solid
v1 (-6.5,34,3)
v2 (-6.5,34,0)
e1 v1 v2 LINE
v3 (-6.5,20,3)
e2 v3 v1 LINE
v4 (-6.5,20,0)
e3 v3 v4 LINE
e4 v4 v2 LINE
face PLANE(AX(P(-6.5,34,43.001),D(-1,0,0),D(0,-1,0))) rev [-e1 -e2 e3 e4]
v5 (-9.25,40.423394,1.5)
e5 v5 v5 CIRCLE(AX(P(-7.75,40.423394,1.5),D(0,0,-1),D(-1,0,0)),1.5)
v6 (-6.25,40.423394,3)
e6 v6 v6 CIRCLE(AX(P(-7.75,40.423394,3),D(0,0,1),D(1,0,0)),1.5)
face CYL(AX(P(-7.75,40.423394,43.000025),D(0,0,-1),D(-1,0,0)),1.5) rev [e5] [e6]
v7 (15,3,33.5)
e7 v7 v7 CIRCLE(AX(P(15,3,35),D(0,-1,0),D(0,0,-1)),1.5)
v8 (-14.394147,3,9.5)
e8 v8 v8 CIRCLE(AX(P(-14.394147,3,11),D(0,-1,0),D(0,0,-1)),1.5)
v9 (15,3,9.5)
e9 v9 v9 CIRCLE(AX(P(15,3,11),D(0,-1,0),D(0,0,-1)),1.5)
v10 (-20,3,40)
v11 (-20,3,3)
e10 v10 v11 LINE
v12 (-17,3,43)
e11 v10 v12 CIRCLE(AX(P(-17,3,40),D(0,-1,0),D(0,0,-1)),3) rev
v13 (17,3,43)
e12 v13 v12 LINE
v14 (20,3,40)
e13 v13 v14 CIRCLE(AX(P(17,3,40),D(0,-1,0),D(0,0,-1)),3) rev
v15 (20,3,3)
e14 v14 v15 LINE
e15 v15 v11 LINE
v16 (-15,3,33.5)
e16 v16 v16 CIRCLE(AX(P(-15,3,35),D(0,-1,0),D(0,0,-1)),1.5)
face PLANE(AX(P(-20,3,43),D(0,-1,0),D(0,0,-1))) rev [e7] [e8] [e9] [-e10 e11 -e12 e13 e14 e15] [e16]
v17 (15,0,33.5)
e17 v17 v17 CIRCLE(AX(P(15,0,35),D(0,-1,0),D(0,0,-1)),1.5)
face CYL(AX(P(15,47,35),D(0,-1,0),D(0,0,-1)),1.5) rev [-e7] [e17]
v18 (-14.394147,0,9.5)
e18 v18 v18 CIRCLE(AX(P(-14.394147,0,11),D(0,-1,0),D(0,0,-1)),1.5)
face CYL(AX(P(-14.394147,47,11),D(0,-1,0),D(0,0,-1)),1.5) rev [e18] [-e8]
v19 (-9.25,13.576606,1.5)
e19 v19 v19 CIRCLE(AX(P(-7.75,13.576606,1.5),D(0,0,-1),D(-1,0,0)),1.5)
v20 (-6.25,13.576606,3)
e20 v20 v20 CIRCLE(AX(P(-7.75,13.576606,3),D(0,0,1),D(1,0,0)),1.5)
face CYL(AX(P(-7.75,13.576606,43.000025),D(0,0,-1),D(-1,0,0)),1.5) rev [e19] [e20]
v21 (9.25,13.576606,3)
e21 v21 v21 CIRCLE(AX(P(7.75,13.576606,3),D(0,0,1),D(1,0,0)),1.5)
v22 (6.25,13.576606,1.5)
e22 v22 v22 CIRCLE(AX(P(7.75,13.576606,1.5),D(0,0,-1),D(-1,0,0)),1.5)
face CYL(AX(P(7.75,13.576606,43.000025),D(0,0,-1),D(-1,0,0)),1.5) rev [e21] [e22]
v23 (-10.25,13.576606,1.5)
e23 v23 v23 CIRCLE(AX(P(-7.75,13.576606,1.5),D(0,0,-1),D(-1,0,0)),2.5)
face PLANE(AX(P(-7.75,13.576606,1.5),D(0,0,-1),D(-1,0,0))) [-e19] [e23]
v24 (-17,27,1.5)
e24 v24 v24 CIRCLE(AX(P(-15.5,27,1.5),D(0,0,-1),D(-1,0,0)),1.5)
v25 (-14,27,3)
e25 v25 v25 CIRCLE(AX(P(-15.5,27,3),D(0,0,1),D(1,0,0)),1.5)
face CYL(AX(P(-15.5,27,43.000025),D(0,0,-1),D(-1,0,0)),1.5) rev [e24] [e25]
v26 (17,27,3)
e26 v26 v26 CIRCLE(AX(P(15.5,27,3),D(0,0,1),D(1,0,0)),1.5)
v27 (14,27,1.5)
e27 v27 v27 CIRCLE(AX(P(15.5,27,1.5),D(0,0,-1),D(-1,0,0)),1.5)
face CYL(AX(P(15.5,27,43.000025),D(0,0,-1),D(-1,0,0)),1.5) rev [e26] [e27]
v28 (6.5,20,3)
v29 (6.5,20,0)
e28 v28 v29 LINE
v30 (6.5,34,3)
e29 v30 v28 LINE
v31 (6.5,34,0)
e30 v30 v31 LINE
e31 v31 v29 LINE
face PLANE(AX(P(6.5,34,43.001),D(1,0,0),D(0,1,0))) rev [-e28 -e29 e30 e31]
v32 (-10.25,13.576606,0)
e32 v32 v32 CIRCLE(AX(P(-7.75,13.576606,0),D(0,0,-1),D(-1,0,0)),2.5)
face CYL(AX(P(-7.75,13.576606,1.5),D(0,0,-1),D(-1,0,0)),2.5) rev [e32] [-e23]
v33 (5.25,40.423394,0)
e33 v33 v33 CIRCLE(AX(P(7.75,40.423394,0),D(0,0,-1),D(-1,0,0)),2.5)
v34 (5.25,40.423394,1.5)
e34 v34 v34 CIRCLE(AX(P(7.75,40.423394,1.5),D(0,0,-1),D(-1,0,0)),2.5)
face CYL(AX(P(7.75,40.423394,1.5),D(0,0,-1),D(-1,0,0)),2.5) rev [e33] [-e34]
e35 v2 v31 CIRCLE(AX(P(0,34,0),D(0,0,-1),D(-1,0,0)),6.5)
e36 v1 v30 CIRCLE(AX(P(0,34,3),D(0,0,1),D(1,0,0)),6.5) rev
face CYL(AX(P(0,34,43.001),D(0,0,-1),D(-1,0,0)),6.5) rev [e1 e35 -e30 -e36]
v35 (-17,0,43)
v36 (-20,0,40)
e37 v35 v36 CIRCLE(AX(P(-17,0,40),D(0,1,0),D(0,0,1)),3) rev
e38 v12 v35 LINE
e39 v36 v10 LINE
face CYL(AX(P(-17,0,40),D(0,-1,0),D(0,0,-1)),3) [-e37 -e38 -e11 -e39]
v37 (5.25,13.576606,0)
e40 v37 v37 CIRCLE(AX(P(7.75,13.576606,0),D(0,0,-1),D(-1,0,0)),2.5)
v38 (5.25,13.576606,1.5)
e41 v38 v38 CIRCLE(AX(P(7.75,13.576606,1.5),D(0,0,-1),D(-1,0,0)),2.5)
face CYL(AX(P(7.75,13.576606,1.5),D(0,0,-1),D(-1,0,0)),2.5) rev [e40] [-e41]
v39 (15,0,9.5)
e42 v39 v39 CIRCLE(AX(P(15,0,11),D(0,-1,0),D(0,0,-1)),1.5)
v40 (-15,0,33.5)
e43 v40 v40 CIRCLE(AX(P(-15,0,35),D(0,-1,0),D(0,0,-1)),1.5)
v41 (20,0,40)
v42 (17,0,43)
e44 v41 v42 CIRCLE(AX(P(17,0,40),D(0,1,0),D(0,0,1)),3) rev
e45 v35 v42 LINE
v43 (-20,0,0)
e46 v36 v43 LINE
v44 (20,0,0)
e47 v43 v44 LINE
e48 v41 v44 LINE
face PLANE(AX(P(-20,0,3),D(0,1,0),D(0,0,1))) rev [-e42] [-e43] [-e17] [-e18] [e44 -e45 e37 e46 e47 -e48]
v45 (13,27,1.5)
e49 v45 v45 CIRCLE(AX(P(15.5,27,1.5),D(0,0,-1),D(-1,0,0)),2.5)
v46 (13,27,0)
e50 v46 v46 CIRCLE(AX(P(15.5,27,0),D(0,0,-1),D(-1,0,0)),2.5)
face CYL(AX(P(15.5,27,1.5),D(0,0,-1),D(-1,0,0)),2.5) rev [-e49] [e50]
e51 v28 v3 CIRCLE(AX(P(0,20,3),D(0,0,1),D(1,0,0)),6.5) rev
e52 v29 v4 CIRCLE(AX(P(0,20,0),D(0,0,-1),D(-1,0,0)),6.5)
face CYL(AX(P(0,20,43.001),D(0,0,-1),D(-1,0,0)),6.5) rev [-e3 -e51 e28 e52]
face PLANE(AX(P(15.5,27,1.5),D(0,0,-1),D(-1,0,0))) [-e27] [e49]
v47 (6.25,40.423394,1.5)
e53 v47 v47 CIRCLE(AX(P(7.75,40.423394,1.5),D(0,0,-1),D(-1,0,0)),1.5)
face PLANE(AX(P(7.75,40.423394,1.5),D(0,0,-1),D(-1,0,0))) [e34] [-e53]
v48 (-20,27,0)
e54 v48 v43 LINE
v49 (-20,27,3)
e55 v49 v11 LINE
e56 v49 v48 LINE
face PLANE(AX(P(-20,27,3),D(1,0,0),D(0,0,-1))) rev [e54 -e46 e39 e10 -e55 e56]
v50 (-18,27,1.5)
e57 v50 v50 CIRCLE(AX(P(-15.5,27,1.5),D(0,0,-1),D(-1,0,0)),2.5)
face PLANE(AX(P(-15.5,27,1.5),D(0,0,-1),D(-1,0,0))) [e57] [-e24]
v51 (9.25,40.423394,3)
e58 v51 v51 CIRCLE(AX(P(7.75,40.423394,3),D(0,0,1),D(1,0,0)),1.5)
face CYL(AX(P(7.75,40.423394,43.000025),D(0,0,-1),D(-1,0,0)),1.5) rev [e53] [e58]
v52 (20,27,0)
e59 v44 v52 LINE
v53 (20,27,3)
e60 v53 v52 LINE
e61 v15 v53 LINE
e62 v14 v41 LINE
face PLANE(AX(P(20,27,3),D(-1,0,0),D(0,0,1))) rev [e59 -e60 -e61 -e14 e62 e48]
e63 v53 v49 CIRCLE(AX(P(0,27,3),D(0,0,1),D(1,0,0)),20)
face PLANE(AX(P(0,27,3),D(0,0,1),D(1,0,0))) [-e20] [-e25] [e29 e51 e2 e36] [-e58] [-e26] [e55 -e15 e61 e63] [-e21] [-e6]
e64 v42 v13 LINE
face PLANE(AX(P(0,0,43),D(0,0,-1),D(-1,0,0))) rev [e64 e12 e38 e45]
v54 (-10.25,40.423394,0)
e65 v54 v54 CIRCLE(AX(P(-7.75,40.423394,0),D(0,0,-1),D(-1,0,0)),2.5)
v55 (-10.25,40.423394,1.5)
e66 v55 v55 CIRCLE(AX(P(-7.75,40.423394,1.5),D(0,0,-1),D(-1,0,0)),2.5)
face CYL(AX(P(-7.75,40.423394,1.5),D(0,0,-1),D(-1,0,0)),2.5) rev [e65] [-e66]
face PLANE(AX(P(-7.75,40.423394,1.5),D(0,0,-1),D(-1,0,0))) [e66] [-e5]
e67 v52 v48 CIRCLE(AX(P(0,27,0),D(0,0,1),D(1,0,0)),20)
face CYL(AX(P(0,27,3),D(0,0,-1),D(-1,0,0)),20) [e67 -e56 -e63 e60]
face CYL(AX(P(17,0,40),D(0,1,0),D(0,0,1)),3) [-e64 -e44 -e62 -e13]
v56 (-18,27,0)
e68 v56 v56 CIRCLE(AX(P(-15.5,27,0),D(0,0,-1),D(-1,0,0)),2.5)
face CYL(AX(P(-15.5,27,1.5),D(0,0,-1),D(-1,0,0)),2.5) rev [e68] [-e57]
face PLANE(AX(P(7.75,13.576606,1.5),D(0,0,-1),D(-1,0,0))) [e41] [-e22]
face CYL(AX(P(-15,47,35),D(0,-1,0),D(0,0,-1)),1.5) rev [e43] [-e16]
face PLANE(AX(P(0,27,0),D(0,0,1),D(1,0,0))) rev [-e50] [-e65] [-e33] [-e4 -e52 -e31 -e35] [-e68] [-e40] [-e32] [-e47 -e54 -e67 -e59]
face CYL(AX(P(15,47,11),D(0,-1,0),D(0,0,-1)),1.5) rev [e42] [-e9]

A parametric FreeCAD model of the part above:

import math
import FreeCAD as App
import Part
import Sketcher
from FreeCAD import Vector


def edges_at(feature, points):
    """Names of the edges that pass closest to the given points."""
    edges = feature.Shape.Edges
    near = lambda p: min(range(len(edges)), key=lambda i: edges[i].distToShape(Part.Vertex(*p))[0])
    return sorted({f"Edge{near(p) + 1}" for p in points})


def add_polygon(sketch, points):
    """Adds a closed chain of lines whose ends are joined by coincident constraints."""
    first, n = sketch.GeometryCount, len(points)
    for a, b in zip(points, points[1:] + points[:1]):
        sketch.addGeometry(Part.LineSegment(App.Vector(*a, 0), App.Vector(*b, 0)), False)
    for i in range(n):
        sketch.addConstraint(Sketcher.Constraint("Coincident", first + i, 2, first + (i + 1) % n, 1))

doc = App.newDocument("Part")
body = doc.addObject("PartDesign::Body", "Body")

# Sketch on XY plane
sketch1 = body.newObject("Sketcher::SketchObject", "Sketch")
sketch1.AttachmentSupport = (doc.getObject("XY_Plane"), [""])
sketch1.MapMode = "FlatFace"
sketch1.addGeometry(Part.LineSegment(Vector(-20, 0, 0), Vector(20, 0, 0)), False)
sketch1.addGeometry(Part.LineSegment(Vector(20, 0, 0), Vector(20, 27, 0)), False)
sketch1.addGeometry(Part.ArcOfCircle(Part.Circle(Vector(0, 27, 0), Vector(0, 0, 1), 20), math.radians(0), math.radians(180)), False)
sketch1.addGeometry(Part.LineSegment(Vector(-20, 27, 0), Vector(-20, 0, 0)), False)
sketch1.addConstraint(Sketcher.Constraint("Coincident", 0, 2, 1, 1))
sketch1.addConstraint(Sketcher.Constraint("Tangent", 1, 2, 2, 1))
sketch1.addConstraint(Sketcher.Constraint("Tangent", 2, 2, 3, 1))
sketch1.addConstraint(Sketcher.Constraint("Coincident", 3, 2, 0, 1))
sketch1.addConstraint(Sketcher.Constraint("Horizontal", 0))
sketch1.addConstraint(Sketcher.Constraint("Vertical", 1))
sketch1.addConstraint(Sketcher.Constraint("Vertical", 3))
sketch1.addConstraint(Sketcher.Constraint("Symmetric", 0, 2, 3, 2, -1, 1))
sketch1.addConstraint(Sketcher.Constraint("Radius", 2, 20.0))
sketch1.addConstraint(Sketcher.Constraint("DistanceY", 1, 1, 1, 2, 27.0))
pad1 = body.newObject("PartDesign::Pad", "Pad")
pad1.Profile = sketch1
pad1.Length = 3

# Sketch on XY plane
sketch2 = body.newObject("Sketcher::SketchObject", "Sketch001")
sketch2.AttachmentSupport = (doc.getObject("XY_Plane"), [""])
sketch2.MapMode = "FlatFace"
sketch2.AttachmentOffset = App.Placement(Vector(0, 0, 3), App.Rotation())
add_polygon(sketch2, [(-20, 3), (-20, 0), (20, 0), (20, 3)])  # lines 0-3
sketch2.addConstraint(Sketcher.Constraint("Vertical", 0))
sketch2.addConstraint(Sketcher.Constraint("Horizontal", 1))
sketch2.addConstraint(Sketcher.Constraint("Vertical", 2))
sketch2.addConstraint(Sketcher.Constraint("Horizontal", 3))
sketch2.addConstraint(Sketcher.Constraint("Symmetric", 0, 2, 1, 2, -1, 1))
sketch2.addConstraint(Sketcher.Constraint("DistanceX", 1, 1, 1, 2, 40.0))
sketch2.addConstraint(Sketcher.Constraint("DistanceY", 0, 2, 0, 1, 3.0))
pad2 = body.newObject("PartDesign::Pad", "Pad001")
pad2.Profile = sketch2
pad2.Length = 40

# Sketch on XY plane
sketch3 = body.newObject("Sketcher::SketchObject", "Sketch002")
sketch3.AttachmentSupport = (doc.getObject("XY_Plane"), [""])
sketch3.MapMode = "FlatFace"
sketch3.addGeometry(Part.Circle(Vector(15.5, 27, 0), Vector(0, 0, 1), 2.5), False)
sketch3.addGeometry(Part.Circle(Vector(7.75, 40.423394, 0), Vector(0, 0, 1), 2.5), False)
sketch3.addGeometry(Part.Circle(Vector(-7.75, 40.423394, 0), Vector(0, 0, 1), 2.5), False)
sketch3.addGeometry(Part.Circle(Vector(-15.5, 27, 0), Vector(0, 0, 1), 2.5), False)
sketch3.addGeometry(Part.Circle(Vector(-7.75, 13.576606, 0), Vector(0, 0, 1), 2.5), False)
sketch3.addGeometry(Part.Circle(Vector(7.75, 13.576606, 0), Vector(0, 0, 1), 2.5), False)
sketch3.addConstraint(Sketcher.Constraint("Equal", 0, 1))
sketch3.addConstraint(Sketcher.Constraint("Equal", 1, 2))
sketch3.addConstraint(Sketcher.Constraint("Equal", 2, 3))
sketch3.addConstraint(Sketcher.Constraint("Equal", 3, 4))
sketch3.addConstraint(Sketcher.Constraint("Equal", 4, 5))
sketch3.addConstraint(Sketcher.Constraint("Symmetric", 1, 3, 2, 3, -2))
sketch3.addConstraint(Sketcher.Constraint("Symmetric", 0, 3, 3, 3, -2))
sketch3.addConstraint(Sketcher.Constraint("Symmetric", 4, 3, 5, 3, -2))
sketch3.addConstraint(Sketcher.Constraint("Vertical", 2, 3, 4, 3))
sketch3.addConstraint(Sketcher.Constraint("Diameter", 0, 5.0))
sketch3.addConstraint(Sketcher.Constraint("DistanceY", -1, 1, 0, 3, 27.0))
sketch3.addConstraint(Sketcher.Constraint("DistanceX", 3, 3, 0, 3, 31.0))
sketch3.addConstraint(Sketcher.Constraint("DistanceX", 2, 3, 1, 3, 15.5))
sketch3.addConstraint(Sketcher.Constraint("DistanceY", -1, 1, 1, 3, 40.423394))
sketch3.addConstraint(Sketcher.Constraint("DistanceY", -1, 1, 4, 3, 13.576606))
pocket1 = body.newObject("PartDesign::Pocket", "Pocket")
pocket1.Profile = sketch3
pocket1.Length = 1.5
pocket1.Reversed = True

# Sketch on XY plane
sketch4 = body.newObject("Sketcher::SketchObject", "Sketch003")
sketch4.AttachmentSupport = (doc.getObject("XY_Plane"), [""])
sketch4.MapMode = "FlatFace"
sketch4.AttachmentOffset = App.Placement(Vector(0, 0, 1.5), App.Rotation())
sketch4.addGeometry(Part.Circle(Vector(15.5, 27, 0), Vector(0, 0, 1), 1.5), False)
sketch4.addGeometry(Part.Circle(Vector(7.75, 40.423394, 0), Vector(0, 0, 1), 1.5), False)
sketch4.addGeometry(Part.Circle(Vector(-7.75, 40.423394, 0), Vector(0, 0, 1), 1.5), False)
sketch4.addGeometry(Part.Circle(Vector(-15.5, 27, 0), Vector(0, 0, 1), 1.5), False)
sketch4.addGeometry(Part.Circle(Vector(-7.75, 13.576606, 0), Vector(0, 0, 1), 1.5), False)
sketch4.addGeometry(Part.Circle(Vector(7.75, 13.576606, 0), Vector(0, 0, 1), 1.5), False)
sketch4.addConstraint(Sketcher.Constraint("Equal", 0, 1))
sketch4.addConstraint(Sketcher.Constraint("Equal", 1, 2))
sketch4.addConstraint(Sketcher.Constraint("Equal", 2, 3))
sketch4.addConstraint(Sketcher.Constraint("Equal", 3, 4))
sketch4.addConstraint(Sketcher.Constraint("Equal", 4, 5))
sketch4.addConstraint(Sketcher.Constraint("Symmetric", 1, 3, 2, 3, -2))
sketch4.addConstraint(Sketcher.Constraint("Symmetric", 0, 3, 3, 3, -2))
sketch4.addConstraint(Sketcher.Constraint("Symmetric", 4, 3, 5, 3, -2))
sketch4.addConstraint(Sketcher.Constraint("Vertical", 2, 3, 4, 3))
sketch4.addConstraint(Sketcher.Constraint("Diameter", 0, 3.0))
sketch4.addConstraint(Sketcher.Constraint("DistanceY", -1, 1, 0, 3, 27.0))
sketch4.addConstraint(Sketcher.Constraint("DistanceX", 3, 3, 0, 3, 31.0))
sketch4.addConstraint(Sketcher.Constraint("DistanceX", 2, 3, 1, 3, 15.5))
sketch4.addConstraint(Sketcher.Constraint("DistanceY", -1, 1, 1, 3, 40.423394))
sketch4.addConstraint(Sketcher.Constraint("DistanceY", -1, 1, 4, 3, 13.576606))
pocket2 = body.newObject("PartDesign::Pocket", "Pocket001")
pocket2.Profile = sketch4
pocket2.Type = "ThroughAll"
pocket2.Reversed = True

# Sketch on XZ plane
sketch5 = body.newObject("Sketcher::SketchObject", "Sketch004")
sketch5.AttachmentSupport = (doc.getObject("XZ_Plane"), [""])
sketch5.MapMode = "FlatFace"
sketch5.addGeometry(Part.Circle(Vector(-15, 35, 0), Vector(0, 0, 1), 1.5), False)
sketch5.addGeometry(Part.Circle(Vector(15, 35, 0), Vector(0, 0, 1), 1.5), False)
sketch5.addGeometry(Part.Circle(Vector(-14.394147, 11, 0), Vector(0, 0, 1), 1.5), False)
sketch5.addGeometry(Part.Circle(Vector(15, 11, 0), Vector(0, 0, 1), 1.5), False)
sketch5.addConstraint(Sketcher.Constraint("Equal", 0, 1))
sketch5.addConstraint(Sketcher.Constraint("Equal", 1, 2))
sketch5.addConstraint(Sketcher.Constraint("Equal", 2, 3))
sketch5.addConstraint(Sketcher.Constraint("Symmetric", 0, 3, 1, 3, -2))
sketch5.addConstraint(Sketcher.Constraint("Horizontal", 2, 3, 3, 3))
sketch5.addConstraint(Sketcher.Constraint("Vertical", 1, 3, 3, 3))
sketch5.addConstraint(Sketcher.Constraint("Diameter", 0, 3.0))
sketch5.addConstraint(Sketcher.Constraint("DistanceX", 0, 3, -1, 1, 15.0))
sketch5.addConstraint(Sketcher.Constraint("DistanceY", -1, 1, 0, 3, 35.0))
sketch5.addConstraint(Sketcher.Constraint("DistanceY", -1, 1, 2, 3, 11.0))
sketch5.addConstraint(Sketcher.Constraint("DistanceX", 2, 3, -1, 1, 14.394147))
pocket3 = body.newObject("PartDesign::Pocket", "Pocket002")
pocket3.Profile = sketch5
pocket3.Type = "ThroughAll"
doc.recompute()

fillet = body.newObject("PartDesign::Fillet", "Fillet")
fillet.Base = (pocket3, edges_at(pocket3, [(20, 1.5, 43), (-20, 1.5, 43)]))
fillet.Radius = 3

# Sketch on XY plane
sketch6 = body.newObject("Sketcher::SketchObject", "Sketch005")
sketch6.AttachmentSupport = (doc.getObject("XY_Plane"), [""])
sketch6.MapMode = "FlatFace"
sketch6.addGeometry(Part.LineSegment(Vector(6.5, 34, 0), Vector(6.5, 20, 0)), False)
sketch6.addGeometry(Part.ArcOfCircle(Part.Circle(Vector(0, 20, 0), Vector(0, 0, 1), 6.5), math.radians(180), math.radians(360)), False)
sketch6.addGeometry(Part.LineSegment(Vector(-6.5, 20, 0), Vector(-6.5, 34, 0)), False)
sketch6.addGeometry(Part.ArcOfCircle(Part.Circle(Vector(0, 34, 0), Vector(0, 0, 1), 6.5), math.radians(0), math.radians(180)), False)
sketch6.addConstraint(Sketcher.Constraint("Tangent", 0, 2, 1, 2))
sketch6.addConstraint(Sketcher.Constraint("Tangent", 1, 1, 2, 1))
sketch6.addConstraint(Sketcher.Constraint("Tangent", 2, 2, 3, 2))
sketch6.addConstraint(Sketcher.Constraint("Tangent", 3, 1, 0, 1))
sketch6.addConstraint(Sketcher.Constraint("Vertical", 0))
sketch6.addConstraint(Sketcher.Constraint("Vertical", 2))
sketch6.addConstraint(Sketcher.Constraint("PointOnObject", 1, 3, -2))
sketch6.addConstraint(Sketcher.Constraint("Radius", 1, 6.5))
sketch6.addConstraint(Sketcher.Constraint("DistanceY", 0, 2, 0, 1, 14.0))
sketch6.addConstraint(Sketcher.Constraint("DistanceY", -1, 1, 1, 3, 20.0))
pocket4 = body.newObject("PartDesign::Pocket", "Pocket003")
pocket4.Profile = sketch6
pocket4.Type = "UpToFirst"
pocket4.Reversed = True

doc.recompute()
